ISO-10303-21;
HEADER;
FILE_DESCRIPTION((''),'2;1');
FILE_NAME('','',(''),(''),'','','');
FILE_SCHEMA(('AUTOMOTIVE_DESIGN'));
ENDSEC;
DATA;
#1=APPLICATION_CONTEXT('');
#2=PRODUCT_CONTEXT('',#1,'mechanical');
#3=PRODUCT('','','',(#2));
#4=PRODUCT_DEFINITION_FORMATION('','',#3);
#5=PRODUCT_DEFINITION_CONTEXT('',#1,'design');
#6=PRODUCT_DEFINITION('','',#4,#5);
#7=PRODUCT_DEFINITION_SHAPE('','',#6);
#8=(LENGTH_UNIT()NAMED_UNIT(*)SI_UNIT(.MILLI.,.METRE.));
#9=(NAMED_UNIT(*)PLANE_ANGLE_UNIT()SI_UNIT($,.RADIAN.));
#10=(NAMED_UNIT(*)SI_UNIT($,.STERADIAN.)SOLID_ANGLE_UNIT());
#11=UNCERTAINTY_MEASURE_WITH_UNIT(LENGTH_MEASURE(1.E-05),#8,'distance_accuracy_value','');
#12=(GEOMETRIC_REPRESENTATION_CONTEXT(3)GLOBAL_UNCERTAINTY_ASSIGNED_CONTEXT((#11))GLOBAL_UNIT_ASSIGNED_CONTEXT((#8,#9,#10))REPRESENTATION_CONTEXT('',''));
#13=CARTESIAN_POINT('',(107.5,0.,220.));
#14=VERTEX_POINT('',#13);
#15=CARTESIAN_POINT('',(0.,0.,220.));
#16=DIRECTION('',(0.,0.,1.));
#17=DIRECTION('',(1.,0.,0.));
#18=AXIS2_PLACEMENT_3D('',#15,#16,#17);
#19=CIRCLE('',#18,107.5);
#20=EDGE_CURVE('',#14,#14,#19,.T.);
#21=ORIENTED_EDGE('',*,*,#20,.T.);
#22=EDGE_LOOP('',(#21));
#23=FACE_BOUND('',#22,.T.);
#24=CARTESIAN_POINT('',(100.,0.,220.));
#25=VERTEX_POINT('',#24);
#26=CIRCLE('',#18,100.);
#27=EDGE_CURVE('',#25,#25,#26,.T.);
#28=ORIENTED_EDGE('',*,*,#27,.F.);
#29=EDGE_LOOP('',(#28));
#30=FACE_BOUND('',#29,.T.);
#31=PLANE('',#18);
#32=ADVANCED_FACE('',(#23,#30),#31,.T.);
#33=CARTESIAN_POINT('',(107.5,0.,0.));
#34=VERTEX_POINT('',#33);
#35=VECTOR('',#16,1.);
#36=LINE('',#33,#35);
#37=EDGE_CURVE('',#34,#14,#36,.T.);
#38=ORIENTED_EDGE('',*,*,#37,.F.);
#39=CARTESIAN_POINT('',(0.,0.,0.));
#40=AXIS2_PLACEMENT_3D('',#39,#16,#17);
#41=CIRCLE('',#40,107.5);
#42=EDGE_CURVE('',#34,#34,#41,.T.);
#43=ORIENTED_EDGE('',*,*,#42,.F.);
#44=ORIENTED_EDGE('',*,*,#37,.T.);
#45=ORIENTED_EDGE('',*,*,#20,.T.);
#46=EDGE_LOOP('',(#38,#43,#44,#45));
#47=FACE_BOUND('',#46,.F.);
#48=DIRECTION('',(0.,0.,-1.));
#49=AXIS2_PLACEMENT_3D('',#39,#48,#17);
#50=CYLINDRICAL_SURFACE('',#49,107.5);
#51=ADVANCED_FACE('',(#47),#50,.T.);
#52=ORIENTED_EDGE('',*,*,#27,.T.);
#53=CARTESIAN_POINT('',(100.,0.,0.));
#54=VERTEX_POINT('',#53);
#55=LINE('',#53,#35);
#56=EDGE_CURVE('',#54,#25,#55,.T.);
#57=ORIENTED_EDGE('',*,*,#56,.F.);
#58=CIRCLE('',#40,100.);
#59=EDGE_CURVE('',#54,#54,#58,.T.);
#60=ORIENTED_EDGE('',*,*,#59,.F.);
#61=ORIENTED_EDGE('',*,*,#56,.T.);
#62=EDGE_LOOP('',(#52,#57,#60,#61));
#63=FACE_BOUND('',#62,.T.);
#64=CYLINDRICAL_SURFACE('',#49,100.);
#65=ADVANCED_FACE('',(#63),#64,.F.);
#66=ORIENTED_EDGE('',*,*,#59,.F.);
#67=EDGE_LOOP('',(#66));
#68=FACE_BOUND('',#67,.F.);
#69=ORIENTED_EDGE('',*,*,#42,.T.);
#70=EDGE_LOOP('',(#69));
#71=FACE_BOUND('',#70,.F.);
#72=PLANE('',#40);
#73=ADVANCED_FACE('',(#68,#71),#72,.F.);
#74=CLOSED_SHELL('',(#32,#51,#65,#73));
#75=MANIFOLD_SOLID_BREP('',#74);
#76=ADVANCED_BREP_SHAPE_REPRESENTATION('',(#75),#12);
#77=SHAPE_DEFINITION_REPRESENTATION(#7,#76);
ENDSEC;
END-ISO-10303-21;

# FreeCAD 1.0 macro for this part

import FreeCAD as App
import Part
import Sketcher

V = App.Vector

doc = App.newDocument("Part")
body = doc.addObject("PartDesign::Body", "Body")

sketch1 = body.newObject("Sketcher::SketchObject", "Sketch")
sketch1.AttachmentSupport = (doc.getObject("XY_Plane"), [""])
sketch1.MapMode = "FlatFace"
sketch1.addGeometry([
    Part.Circle(V(0, 0, 0), V(0, 0, 1), 108),
    Part.Circle(V(0, 0, 0), V(0, 0, 1), 100),
], False)
sketch1.addConstraint([
    Sketcher.Constraint("Coincident", 0, 3, -1, 1),
    Sketcher.Constraint("Coincident", 1, 3, -1, 1),
    Sketcher.Constraint("Diameter", 0, 215.0),
    Sketcher.Constraint("Diameter", 1, 200.0),
])
pad1 = body.newObject("PartDesign::Pad", "Pad")
pad1.Profile = sketch1
pad1.Length = 220

doc.recompute()
